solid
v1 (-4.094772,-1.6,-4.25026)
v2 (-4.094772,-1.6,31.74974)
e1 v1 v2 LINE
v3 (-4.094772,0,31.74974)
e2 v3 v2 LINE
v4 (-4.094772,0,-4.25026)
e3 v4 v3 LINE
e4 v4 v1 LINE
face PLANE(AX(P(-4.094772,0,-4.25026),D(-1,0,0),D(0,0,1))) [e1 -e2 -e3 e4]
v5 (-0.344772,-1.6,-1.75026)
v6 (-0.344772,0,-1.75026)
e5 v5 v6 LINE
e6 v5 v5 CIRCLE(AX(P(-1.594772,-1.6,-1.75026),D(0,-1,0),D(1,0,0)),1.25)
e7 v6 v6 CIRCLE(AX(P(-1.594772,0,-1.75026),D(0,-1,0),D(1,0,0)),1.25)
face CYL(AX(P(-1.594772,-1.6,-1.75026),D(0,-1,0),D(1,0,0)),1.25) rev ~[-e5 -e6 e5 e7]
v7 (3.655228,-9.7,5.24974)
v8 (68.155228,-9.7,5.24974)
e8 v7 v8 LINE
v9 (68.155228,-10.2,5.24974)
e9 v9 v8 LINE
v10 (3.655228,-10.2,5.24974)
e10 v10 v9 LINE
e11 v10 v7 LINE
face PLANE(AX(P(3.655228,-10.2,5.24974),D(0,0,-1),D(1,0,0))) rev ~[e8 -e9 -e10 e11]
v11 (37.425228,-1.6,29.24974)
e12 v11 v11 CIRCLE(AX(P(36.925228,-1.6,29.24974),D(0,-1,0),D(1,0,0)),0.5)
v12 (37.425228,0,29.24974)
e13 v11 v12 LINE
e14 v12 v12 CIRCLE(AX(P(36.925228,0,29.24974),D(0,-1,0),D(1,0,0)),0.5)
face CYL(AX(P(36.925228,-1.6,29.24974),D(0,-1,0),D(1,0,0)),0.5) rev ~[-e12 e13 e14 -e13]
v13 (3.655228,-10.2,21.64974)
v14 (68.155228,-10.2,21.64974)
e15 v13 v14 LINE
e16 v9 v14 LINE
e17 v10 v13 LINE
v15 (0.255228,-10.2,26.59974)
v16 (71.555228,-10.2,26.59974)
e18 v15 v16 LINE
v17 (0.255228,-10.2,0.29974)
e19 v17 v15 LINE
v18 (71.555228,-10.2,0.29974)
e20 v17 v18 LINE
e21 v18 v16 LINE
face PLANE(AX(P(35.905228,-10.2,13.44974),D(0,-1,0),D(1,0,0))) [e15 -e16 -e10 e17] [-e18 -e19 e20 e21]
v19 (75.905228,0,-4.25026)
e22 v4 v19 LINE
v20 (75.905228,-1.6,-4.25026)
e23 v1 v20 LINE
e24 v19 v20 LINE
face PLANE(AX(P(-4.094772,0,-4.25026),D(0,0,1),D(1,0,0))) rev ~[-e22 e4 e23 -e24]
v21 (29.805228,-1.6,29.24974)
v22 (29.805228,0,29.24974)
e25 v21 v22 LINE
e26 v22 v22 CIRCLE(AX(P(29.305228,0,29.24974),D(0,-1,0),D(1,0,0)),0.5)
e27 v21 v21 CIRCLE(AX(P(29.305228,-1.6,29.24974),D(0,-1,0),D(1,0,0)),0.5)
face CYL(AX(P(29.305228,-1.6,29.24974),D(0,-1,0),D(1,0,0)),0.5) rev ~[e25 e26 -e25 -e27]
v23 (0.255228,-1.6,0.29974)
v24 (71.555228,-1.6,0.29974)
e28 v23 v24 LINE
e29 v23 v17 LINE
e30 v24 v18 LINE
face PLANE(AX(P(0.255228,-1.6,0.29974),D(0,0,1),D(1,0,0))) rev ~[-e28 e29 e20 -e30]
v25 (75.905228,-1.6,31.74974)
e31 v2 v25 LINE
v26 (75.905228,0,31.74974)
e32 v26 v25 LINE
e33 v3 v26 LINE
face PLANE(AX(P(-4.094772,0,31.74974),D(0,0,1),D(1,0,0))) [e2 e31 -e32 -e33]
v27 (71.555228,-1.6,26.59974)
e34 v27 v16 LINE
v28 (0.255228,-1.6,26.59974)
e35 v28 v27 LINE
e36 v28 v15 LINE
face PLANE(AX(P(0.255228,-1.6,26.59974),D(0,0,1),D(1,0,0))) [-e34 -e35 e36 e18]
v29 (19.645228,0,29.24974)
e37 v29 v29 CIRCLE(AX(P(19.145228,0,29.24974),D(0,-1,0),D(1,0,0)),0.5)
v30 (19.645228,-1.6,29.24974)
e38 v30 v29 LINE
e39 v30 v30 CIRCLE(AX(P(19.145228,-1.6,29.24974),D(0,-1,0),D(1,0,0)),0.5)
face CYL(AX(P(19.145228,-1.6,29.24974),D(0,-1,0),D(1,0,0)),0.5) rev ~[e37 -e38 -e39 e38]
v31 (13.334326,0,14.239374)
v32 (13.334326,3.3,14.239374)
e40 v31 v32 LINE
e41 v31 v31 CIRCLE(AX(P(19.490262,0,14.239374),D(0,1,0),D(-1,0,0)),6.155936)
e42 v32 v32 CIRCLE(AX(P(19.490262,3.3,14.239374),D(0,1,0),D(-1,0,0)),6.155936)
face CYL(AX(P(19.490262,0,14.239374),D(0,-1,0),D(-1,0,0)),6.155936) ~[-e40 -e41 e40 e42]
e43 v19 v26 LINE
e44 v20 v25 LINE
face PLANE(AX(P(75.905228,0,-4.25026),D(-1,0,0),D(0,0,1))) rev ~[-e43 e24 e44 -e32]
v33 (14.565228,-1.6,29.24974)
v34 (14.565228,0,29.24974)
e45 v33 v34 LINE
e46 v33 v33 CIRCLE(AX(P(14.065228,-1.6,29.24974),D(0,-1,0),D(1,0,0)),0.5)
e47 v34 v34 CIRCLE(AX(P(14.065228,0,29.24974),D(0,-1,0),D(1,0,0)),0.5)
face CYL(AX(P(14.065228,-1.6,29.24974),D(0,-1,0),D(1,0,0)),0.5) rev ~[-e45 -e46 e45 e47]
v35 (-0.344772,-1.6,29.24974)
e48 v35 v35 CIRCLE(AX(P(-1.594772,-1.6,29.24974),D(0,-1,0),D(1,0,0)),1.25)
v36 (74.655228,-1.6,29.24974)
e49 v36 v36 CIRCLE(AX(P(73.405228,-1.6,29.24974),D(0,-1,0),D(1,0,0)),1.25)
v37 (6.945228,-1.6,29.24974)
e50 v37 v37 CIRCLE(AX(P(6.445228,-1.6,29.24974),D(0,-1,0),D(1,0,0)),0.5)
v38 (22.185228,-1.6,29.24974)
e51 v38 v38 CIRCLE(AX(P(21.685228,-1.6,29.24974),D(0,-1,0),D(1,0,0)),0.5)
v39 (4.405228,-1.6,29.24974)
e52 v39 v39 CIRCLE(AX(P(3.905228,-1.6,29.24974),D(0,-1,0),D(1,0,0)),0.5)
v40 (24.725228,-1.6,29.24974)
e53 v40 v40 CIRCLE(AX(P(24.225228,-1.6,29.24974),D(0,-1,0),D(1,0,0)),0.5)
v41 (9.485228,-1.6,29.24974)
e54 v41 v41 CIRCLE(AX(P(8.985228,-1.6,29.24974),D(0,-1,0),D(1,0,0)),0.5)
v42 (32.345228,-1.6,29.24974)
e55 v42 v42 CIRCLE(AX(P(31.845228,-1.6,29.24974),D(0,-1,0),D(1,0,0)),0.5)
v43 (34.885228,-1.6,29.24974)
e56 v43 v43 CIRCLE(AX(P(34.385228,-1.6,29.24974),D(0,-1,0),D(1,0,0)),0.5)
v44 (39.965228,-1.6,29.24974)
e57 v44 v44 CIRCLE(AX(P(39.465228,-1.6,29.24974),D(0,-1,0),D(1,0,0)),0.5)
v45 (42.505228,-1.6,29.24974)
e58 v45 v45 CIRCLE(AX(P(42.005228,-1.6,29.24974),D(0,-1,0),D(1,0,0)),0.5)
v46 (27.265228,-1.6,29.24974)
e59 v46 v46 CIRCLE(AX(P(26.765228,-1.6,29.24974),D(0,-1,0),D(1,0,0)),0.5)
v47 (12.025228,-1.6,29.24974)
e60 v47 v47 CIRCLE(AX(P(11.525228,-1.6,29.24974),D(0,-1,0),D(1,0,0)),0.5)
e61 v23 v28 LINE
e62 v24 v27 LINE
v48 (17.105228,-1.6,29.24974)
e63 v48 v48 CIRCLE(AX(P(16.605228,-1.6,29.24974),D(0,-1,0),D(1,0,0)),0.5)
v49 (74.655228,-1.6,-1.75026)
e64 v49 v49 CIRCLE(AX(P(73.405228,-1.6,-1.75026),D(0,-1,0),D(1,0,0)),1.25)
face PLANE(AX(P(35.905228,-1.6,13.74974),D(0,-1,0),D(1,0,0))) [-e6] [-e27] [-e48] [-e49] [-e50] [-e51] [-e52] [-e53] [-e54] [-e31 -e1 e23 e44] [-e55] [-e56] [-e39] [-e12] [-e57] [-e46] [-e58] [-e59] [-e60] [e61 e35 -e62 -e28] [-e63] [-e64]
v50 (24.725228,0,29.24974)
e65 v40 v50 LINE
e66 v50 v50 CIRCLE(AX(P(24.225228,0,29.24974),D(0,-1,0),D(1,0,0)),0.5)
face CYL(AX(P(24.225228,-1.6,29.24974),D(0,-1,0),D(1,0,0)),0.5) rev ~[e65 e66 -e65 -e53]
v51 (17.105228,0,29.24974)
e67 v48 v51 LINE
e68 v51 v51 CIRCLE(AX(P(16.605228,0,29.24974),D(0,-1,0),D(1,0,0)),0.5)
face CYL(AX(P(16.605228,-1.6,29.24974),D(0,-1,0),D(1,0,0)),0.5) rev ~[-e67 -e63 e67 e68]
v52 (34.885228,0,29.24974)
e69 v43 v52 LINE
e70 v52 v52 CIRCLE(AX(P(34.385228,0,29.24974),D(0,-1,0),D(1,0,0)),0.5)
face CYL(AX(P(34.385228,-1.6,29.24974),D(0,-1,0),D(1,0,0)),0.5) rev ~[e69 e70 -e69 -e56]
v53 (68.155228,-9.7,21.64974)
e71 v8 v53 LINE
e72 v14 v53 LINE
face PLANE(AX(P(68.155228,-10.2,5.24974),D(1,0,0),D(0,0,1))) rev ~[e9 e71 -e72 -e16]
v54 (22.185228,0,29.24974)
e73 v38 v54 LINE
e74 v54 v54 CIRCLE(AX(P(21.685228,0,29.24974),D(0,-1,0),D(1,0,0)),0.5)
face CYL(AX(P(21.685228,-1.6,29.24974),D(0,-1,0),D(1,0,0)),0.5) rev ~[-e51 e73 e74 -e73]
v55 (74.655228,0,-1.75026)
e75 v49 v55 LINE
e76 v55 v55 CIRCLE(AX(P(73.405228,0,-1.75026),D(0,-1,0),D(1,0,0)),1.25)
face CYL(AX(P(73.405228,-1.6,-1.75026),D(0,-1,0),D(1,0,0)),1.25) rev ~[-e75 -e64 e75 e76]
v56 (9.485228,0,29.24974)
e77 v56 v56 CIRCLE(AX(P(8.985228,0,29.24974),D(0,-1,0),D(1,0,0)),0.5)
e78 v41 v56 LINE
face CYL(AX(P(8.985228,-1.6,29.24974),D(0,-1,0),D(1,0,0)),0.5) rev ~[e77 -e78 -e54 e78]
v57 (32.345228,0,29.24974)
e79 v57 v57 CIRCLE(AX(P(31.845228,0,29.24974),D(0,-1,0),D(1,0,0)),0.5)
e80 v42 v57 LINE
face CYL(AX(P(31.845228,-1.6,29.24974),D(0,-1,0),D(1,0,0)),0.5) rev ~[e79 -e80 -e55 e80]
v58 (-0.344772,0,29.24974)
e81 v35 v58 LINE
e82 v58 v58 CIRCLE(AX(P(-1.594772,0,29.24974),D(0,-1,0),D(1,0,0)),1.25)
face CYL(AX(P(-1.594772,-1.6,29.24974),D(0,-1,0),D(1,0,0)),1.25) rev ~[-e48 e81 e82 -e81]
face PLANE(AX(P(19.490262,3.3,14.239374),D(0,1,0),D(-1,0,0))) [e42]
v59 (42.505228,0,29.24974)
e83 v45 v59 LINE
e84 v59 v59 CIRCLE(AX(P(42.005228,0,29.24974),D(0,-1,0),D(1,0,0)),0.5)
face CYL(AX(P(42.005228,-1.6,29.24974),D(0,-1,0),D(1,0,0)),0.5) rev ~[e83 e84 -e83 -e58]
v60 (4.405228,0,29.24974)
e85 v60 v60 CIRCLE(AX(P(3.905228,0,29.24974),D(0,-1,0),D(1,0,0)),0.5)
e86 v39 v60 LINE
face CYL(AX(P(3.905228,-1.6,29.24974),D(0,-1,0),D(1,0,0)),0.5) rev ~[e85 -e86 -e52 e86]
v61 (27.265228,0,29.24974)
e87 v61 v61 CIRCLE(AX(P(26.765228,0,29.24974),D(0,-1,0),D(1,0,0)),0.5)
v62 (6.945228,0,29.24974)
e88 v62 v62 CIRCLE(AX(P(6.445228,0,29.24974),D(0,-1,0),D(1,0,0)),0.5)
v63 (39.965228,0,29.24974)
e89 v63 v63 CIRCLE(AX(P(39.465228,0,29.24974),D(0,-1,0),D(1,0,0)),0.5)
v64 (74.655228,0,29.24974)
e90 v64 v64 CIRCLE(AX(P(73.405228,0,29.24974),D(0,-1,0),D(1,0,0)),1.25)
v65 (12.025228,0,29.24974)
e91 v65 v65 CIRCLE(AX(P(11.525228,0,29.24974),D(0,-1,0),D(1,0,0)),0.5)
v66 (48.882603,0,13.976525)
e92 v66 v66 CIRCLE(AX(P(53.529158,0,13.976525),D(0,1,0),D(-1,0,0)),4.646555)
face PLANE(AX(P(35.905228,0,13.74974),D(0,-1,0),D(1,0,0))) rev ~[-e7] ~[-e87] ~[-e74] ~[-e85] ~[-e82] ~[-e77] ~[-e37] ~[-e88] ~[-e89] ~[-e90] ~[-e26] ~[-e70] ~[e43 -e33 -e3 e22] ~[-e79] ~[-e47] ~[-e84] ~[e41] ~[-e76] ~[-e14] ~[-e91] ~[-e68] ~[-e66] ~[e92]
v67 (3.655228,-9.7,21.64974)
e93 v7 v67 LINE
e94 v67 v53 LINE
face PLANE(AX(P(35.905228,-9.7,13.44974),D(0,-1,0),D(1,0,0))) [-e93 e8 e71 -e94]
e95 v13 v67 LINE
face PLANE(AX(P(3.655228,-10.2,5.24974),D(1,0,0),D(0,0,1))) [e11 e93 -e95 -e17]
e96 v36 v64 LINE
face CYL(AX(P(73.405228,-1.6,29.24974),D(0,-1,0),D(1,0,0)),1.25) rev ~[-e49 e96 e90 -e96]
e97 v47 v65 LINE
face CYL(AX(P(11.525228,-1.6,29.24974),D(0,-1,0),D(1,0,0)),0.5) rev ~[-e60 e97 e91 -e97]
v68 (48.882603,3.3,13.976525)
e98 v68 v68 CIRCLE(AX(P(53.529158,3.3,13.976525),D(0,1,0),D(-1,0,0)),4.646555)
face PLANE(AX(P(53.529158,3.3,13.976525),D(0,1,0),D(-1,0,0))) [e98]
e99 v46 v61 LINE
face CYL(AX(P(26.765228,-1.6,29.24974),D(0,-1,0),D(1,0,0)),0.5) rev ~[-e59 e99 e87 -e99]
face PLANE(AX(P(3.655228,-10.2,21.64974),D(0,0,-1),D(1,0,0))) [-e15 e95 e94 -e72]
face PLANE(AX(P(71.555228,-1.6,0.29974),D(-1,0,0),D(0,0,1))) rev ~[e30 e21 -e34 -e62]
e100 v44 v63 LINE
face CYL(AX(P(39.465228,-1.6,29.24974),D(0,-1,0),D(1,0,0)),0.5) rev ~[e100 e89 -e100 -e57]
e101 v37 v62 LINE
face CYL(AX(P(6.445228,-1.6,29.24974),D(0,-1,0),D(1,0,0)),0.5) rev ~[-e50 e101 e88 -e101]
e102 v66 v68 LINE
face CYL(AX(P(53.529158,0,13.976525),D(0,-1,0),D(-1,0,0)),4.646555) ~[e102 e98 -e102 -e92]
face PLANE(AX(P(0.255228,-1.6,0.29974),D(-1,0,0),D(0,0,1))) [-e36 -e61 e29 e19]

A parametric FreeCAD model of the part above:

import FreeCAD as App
import Part
import Sketcher
Q = App.Units.Quantity

doc = App.newDocument("Part")
body = doc.addObject("PartDesign::Body", "Body")

# Sketch on XZ plane
sketch1 = body.newObject("Sketcher::SketchObject", "Sketch")
sketch1.AttachmentSupport = (doc.getObject("XZ_Plane"), [""])
sketch1.MapMode = "FlatFace"
sketch1.addGeometry([
    Part.LineSegment(App.Vector(-4, 32, 0), App.Vector(-4, -4, 0)),
    Part.LineSegment(App.Vector(-4, -4, 0), App.Vector(76, -4, 0)),
    Part.LineSegment(App.Vector(76, -4, 0), App.Vector(76, 32, 0)),
    Part.LineSegment(App.Vector(76, 32, 0), App.Vector(-4, 32, 0)),
], False)
sketch1.addConstraint([
    Sketcher.Constraint("Coincident", 0, 2, 1, 1),
    Sketcher.Constraint("Coincident", 1, 2, 2, 1),
    Sketcher.Constraint("Coincident", 2, 2, 3, 1),
    Sketcher.Constraint("Coincident", 3, 2, 0, 1),
    Sketcher.Constraint("Vertical", 0),
    Sketcher.Constraint("Horizontal", 1),
    Sketcher.Constraint("Vertical", 2),
    Sketcher.Constraint("Horizontal", 3),
    Sketcher.Constraint("DistanceX", 1, 1, 1, 2, Q("80 mm")),
    Sketcher.Constraint("DistanceY", 0, 2, 0, 1, Q("36 mm")),
    Sketcher.Constraint("DistanceY", 0, 2, -1, 1, Q("4.25026 mm")),
    Sketcher.Constraint("DistanceX", 0, 2, -1, 1, Q("4.094772 mm")),
])
pad1 = body.newObject("PartDesign::Pad", "Pad")
pad1.Profile = sketch1
pad1.Length = 1.6

# Sketch on XZ plane
sketch2 = body.newObject("Sketcher::SketchObject", "Sketch001")
sketch2.AttachmentSupport = (doc.getObject("XZ_Plane"), [""])
sketch2.MapMode = "FlatFace"
sketch2.AttachmentOffset = App.Placement(App.Vector(0, 0, 1.6), App.Rotation())
sketch2.addGeometry([
    Part.LineSegment(App.Vector(0, 27, 0), App.Vector(0, 0, 0)),
    Part.LineSegment(App.Vector(0, 0, 0), App.Vector(72, 0, 0)),
    Part.LineSegment(App.Vector(72, 0, 0), App.Vector(72, 27, 0)),
    Part.LineSegment(App.Vector(72, 27, 0), App.Vector(0, 27, 0)),
], False)
sketch2.addConstraint([
    Sketcher.Constraint("Coincident", 0, 2, 1, 1),
    Sketcher.Constraint("Coincident", 1, 2, 2, 1),
    Sketcher.Constraint("Coincident", 2, 2, 3, 1),
    Sketcher.Constraint("Coincident", 3, 2, 0, 1),
    Sketcher.Constraint("Vertical", 0),
    Sketcher.Constraint("Horizontal", 1),
    Sketcher.Constraint("Vertical", 2),
    Sketcher.Constraint("Horizontal", 3),
    Sketcher.Constraint("DistanceX", 1, 1, 1, 2, Q("71.3 mm")),
    Sketcher.Constraint("DistanceY", 0, 2, 0, 1, Q("26.3 mm")),
    Sketcher.Constraint("DistanceY", -1, 1, 0, 2, Q("0.29974 mm")),
    Sketcher.Constraint("DistanceX", -1, 1, 1, 2, Q("71.555228 mm")),
])
pad2 = body.newObject("PartDesign::Pad", "Pad001")
pad2.Profile = sketch2
pad2.Length = 8.6

# Sketch on XZ plane
sketch3 = body.newObject("Sketcher::SketchObject", "Sketch002")
sketch3.AttachmentSupport = (doc.getObject("XZ_Plane"), [""])
sketch3.MapMode = "FlatFace"
sketch3.AttachmentOffset = App.Placement(App.Vector(0, 0, 10.2), App.Rotation())
sketch3.addGeometry([
    Part.LineSegment(App.Vector(4, 22, 0), App.Vector(4, 5, 0)),
    Part.LineSegment(App.Vector(4, 5, 0), App.Vector(68, 5, 0)),
    Part.LineSegment(App.Vector(68, 5, 0), App.Vector(68, 22, 0)),
    Part.LineSegment(App.Vector(68, 22, 0), App.Vector(4, 22, 0)),
], False)
sketch3.addConstraint([
    Sketcher.Constraint("Coincident", 0, 2, 1, 1),
    Sketcher.Constraint("Coincident", 1, 2, 2, 1),
    Sketcher.Constraint("Coincident", 2, 2, 3, 1),
    Sketcher.Constraint("Coincident", 3, 2, 0, 1),
    Sketcher.Constraint("Vertical", 0),
    Sketcher.Constraint("Horizontal", 1),
    Sketcher.Constraint("Vertical", 2),
    Sketcher.Constraint("Horizontal", 3),
    Sketcher.Constraint("DistanceX", 1, 1, 1, 2, Q("64.5 mm")),
    Sketcher.Constraint("DistanceY", 0, 2, 0, 1, Q("16.4 mm")),
    Sketcher.Constraint("DistanceX", -1, 1, 0, 2, Q("3.655228 mm")),
    Sketcher.Constraint("DistanceY", -1, 1, 0, 2, Q("5.24974 mm")),
])
pocket1 = body.newObject("PartDesign::Pocket", "Pocket")
pocket1.Profile = sketch3
pocket1.Length = 0.5

# Sketch on XZ plane
sketch4 = body.newObject("Sketcher::SketchObject", "Sketch003")
sketch4.AttachmentSupport = (doc.getObject("XZ_Plane"), [""])
sketch4.MapMode = "FlatFace"
sketch4.AttachmentOffset = App.Placement(App.Vector(0, 0, 1.6), App.Rotation())
sketch4.addGeometry([
    Part.Circle(App.Vector(-1.6, 29.2, 0), App.Vector(0, 0, 1), 1.2),
    Part.Circle(App.Vector(73.4, 29.2, 0), App.Vector(0, 0, 1), 1.2),
    Part.Circle(App.Vector(73.4, -1.8, 0), App.Vector(0, 0, 1), 1.2),
    Part.Circle(App.Vector(-1.6, -1.8, 0), App.Vector(0, 0, 1), 1.2),
], False)
sketch4.addConstraint([
    Sketcher.Constraint("Equal", 0, 1),
    Sketcher.Constraint("Equal", 1, 2),
    Sketcher.Constraint("Equal", 2, 3),
    Sketcher.Constraint("Horizontal", 0, 3, 1, 3),
    Sketcher.Constraint("Horizontal", 2, 3, 3, 3),
    Sketcher.Constraint("Vertical", 1, 3, 2, 3),
    Sketcher.Constraint("Vertical", 0, 3, 3, 3),
    Sketcher.Constraint("Diameter", 0, Q("2.5 mm")),
    Sketcher.Constraint("DistanceX", 0, 3, 1, 3, Q("75 mm")),
    Sketcher.Constraint("DistanceY", 2, 3, 1, 3, Q("31 mm")),
    Sketcher.Constraint("DistanceY", -1, 1, 0, 3, Q("29.24974 mm")),
    Sketcher.Constraint("DistanceX", 0, 3, -1, 1, Q("1.594772 mm")),
])
pocket2 = body.newObject("PartDesign::Pocket", "Pocket001")
pocket2.Profile = sketch4
pocket2.Type = "ThroughAll"

# Sketch on XZ plane
sketch5 = body.newObject("Sketcher::SketchObject", "Sketch004")
sketch5.AttachmentSupport = (doc.getObject("XZ_Plane"), [""])
sketch5.MapMode = "FlatFace"
sketch5.AttachmentOffset = App.Placement(App.Vector(0, 0, 1.6), App.Rotation())
sketch5.addGeometry([
    Part.Circle(App.Vector(3.9, 29.2, 0), App.Vector(0, 0, 1), 0.5),  # 0
    Part.Circle(App.Vector(6.4, 29.2, 0), App.Vector(0, 0, 1), 0.5),  # 1
    Part.Circle(App.Vector(9, 29.2, 0), App.Vector(0, 0, 1), 0.5),  # 2
    Part.Circle(App.Vector(11.5, 29.2, 0), App.Vector(0, 0, 1), 0.5),  # 3
    Part.Circle(App.Vector(14.1, 29.2, 0), App.Vector(0, 0, 1), 0.5),  # 4
    Part.Circle(App.Vector(16.6, 29.2, 0), App.Vector(0, 0, 1), 0.5),  # 5
    Part.Circle(App.Vector(19.1, 29.2, 0), App.Vector(0, 0, 1), 0.5),  # 6
    Part.Circle(App.Vector(21.7, 29.2, 0), App.Vector(0, 0, 1), 0.5),  # 7
    Part.Circle(App.Vector(24.2, 29.2, 0), App.Vector(0, 0, 1), 0.5),  # 8
    Part.Circle(App.Vector(26.8, 29.2, 0), App.Vector(0, 0, 1), 0.5),  # 9
    Part.Circle(App.Vector(29.3, 29.2, 0), App.Vector(0, 0, 1), 0.5),  # 10
    Part.Circle(App.Vector(31.8, 29.2, 0), App.Vector(0, 0, 1), 0.5),  # 11
    Part.Circle(App.Vector(34.4, 29.2, 0), App.Vector(0, 0, 1), 0.5),  # 12
    Part.Circle(App.Vector(36.9, 29.2, 0), App.Vector(0, 0, 1), 0.5),  # 13
    Part.Circle(App.Vector(39.5, 29.2, 0), App.Vector(0, 0, 1), 0.5),  # 14
    Part.Circle(App.Vector(42, 29.2, 0), App.Vector(0, 0, 1), 0.5),  # 15
], False)
sketch5.addConstraint([
    Sketcher.Constraint("Equal", 0, 1),
    Sketcher.Constraint("Equal", 1, 2),
    Sketcher.Constraint("Equal", 2, 3),
    Sketcher.Constraint("Equal", 3, 4),
    Sketcher.Constraint("Equal", 4, 5),
    Sketcher.Constraint("Equal", 5, 6),
    Sketcher.Constraint("Equal", 6, 7),
    Sketcher.Constraint("Equal", 7, 8),
    Sketcher.Constraint("Equal", 8, 9),
    Sketcher.Constraint("Equal", 9, 10),
    Sketcher.Constraint("Equal", 10, 11),
    Sketcher.Constraint("Equal", 11, 12),
    Sketcher.Constraint("Equal", 12, 13),
    Sketcher.Constraint("Equal", 13, 14),
    Sketcher.Constraint("Equal", 14, 15),
    Sketcher.Constraint("Horizontal", 0, 3, 1, 3),
    Sketcher.Constraint("Horizontal", 1, 3, 2, 3),
    Sketcher.Constraint("Horizontal", 2, 3, 3, 3),
    Sketcher.Constraint("Horizontal", 3, 3, 4, 3),
    Sketcher.Constraint("Horizontal", 4, 3, 5, 3),
    Sketcher.Constraint("Horizontal", 5, 3, 6, 3),
    Sketcher.Constraint("Horizontal", 6, 3, 7, 3),
    Sketcher.Constraint("Horizontal", 7, 3, 8, 3),
    Sketcher.Constraint("Horizontal", 8, 3, 9, 3),
    Sketcher.Constraint("Horizontal", 9, 3, 10, 3),
    Sketcher.Constraint("Horizontal", 10, 3, 11, 3),
    Sketcher.Constraint("Horizontal", 11, 3, 12, 3),
    Sketcher.Constraint("Horizontal", 12, 3, 13, 3),
    Sketcher.Constraint("Horizontal", 13, 3, 14, 3),
    Sketcher.Constraint("Horizontal", 14, 3, 15, 3),
    Sketcher.Constraint("Diameter", 0, Q("1 mm")),
    Sketcher.Constraint("DistanceX", 0, 3, 5, 3, Q("12.7 mm")),
    Sketcher.Constraint("DistanceX", 1, 3, 6, 3, Q("12.7 mm")),
    Sketcher.Constraint("DistanceX", 2, 3, 7, 3, Q("12.7 mm")),
    Sketcher.Constraint("DistanceX", 3, 3, 8, 3, Q("12.7 mm")),
    Sketcher.Constraint("DistanceX", 4, 3, 9, 3, Q("12.7 mm")),
    Sketcher.Constraint("DistanceX", 5, 3, 10, 3, Q("12.7 mm")),
    Sketcher.Constraint("DistanceX", 6, 3, 11, 3, Q("12.7 mm")),
    Sketcher.Constraint("DistanceX", 7, 3, 12, 3, Q("12.7 mm")),
    Sketcher.Constraint("DistanceX", 8, 3, 13, 3, Q("12.7 mm")),
    Sketcher.Constraint("DistanceX", 9, 3, 14, 3, Q("12.7 mm")),
    Sketcher.Constraint("DistanceX", 10, 3, 15, 3, Q("12.7 mm")),
    Sketcher.Constraint("DistanceX", 0, 3, 1, 3, Q("2.54 mm")),
    Sketcher.Constraint("DistanceX", 1, 3, 2, 3, Q("2.54 mm")),
    Sketcher.Constraint("DistanceX", 2, 3, 3, 3, Q("2.54 mm")),
    Sketcher.Constraint("DistanceX", 3, 3, 4, 3, Q("2.54 mm")),
    Sketcher.Constraint("DistanceX", -1, 1, 0, 3, Q("3.905228 mm")),
    Sketcher.Constraint("DistanceY", -1, 1, 0, 3, Q("29.24974 mm")),
])
pocket3 = body.newObject("PartDesign::Pocket", "Pocket002")
pocket3.Profile = sketch5
pocket3.Type = "ThroughAll"

# Sketch on XZ plane
sketch6 = body.newObject("Sketcher::SketchObject", "Sketch005")
sketch6.AttachmentSupport = (doc.getObject("XZ_Plane"), [""])
sketch6.MapMode = "FlatFace"
sketch6.addGeometry([
    Part.Circle(App.Vector(53.5, 14, 0), App.Vector(0, 0, 1), 4.6),
    Part.Circle(App.Vector(19.5, 14.2, 0), App.Vector(0, 0, 1), 6.2),
], False)
sketch6.addConstraint([
    Sketcher.Constraint("Diameter", 0, Q("9.29311 mm")),
    Sketcher.Constraint("Diameter", 1, Q("12.311872 mm")),
    Sketcher.Constraint("DistanceX", -1, 1, 0, 3, Q("53.529158 mm")),
    Sketcher.Constraint("DistanceY", 0, 3, 1, 3, Q("0.262849 mm")),
    Sketcher.Constraint("DistanceY", -1, 1, 0, 3, Q("13.976525 mm")),
    Sketcher.Constraint("DistanceX", -1, 1, 1, 3, Q("19.490262 mm")),
])
pad3 = body.newObject("PartDesign::Pad", "Pad002")
pad3.Profile = sketch6
pad3.Length = 3.3
pad3.Reversed = True

doc.recompute()
